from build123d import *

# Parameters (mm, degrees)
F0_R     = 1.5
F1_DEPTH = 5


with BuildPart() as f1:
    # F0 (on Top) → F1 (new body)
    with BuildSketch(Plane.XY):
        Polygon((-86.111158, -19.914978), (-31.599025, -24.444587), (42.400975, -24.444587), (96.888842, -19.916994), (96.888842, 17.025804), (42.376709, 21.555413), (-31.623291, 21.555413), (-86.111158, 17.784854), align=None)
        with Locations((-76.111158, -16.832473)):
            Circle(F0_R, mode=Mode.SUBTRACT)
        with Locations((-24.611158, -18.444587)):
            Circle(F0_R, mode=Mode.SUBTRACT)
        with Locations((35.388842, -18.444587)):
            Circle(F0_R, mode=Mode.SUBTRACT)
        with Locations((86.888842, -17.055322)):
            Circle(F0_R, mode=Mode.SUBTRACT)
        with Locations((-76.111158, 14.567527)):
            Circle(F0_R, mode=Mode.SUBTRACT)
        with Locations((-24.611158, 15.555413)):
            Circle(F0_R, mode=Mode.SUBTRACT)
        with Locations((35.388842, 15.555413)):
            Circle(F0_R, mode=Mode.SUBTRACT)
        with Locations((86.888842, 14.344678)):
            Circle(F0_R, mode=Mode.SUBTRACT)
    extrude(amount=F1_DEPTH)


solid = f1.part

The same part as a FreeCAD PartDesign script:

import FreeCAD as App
import Part
import Sketcher
Q = App.Units.Quantity

doc = App.newDocument("Part")
body = doc.addObject("PartDesign::Body", "Body")

sketch1 = body.newObject("Sketcher::SketchObject", "Sketch")
sketch1.AttachmentSupport = (doc.getObject("XY_Plane"), [""])
sketch1.MapMode = "FlatFace"
sketch1.addGeometry(Part.LineSegment(App.Vector(-86.1, -19.9, 0), App.Vector(-31.6, -24.4, 0)), False)
sketch1.addGeometry(Part.LineSegment(App.Vector(-31.6, -24.4, 0), App.Vector(42.4, -24.4, 0)), False)
sketch1.addGeometry(Part.LineSegment(App.Vector(42.4, -24.4, 0), App.Vector(96.9, -19.9, 0)), False)
sketch1.addGeometry(Part.LineSegment(App.Vector(96.9, -19.9, 0), App.Vector(96.9, 17, 0)), False)
sketch1.addGeometry(Part.LineSegment(App.Vector(96.9, 17, 0), App.Vector(42.4, 21.6, 0)), False)
sketch1.addGeometry(Part.LineSegment(App.Vector(42.4, 21.6, 0), App.Vector(-31.6, 21.6, 0)), False)
sketch1.addGeometry(Part.LineSegment(App.Vector(-31.6, 21.6, 0), App.Vector(-86.1, 17.8, 0)), False)
sketch1.addGeometry(Part.LineSegment(App.Vector(-86.1, 17.8, 0), App.Vector(-86.1, -19.9, 0)), False)
sketch1.addGeometry(Part.Circle(App.Vector(-76.1, -16.8, 0), App.Vector(0, 0, 1), 1.5), False)
sketch1.addGeometry(Part.Circle(App.Vector(-24.6, -18.4, 0), App.Vector(0, 0, 1), 1.5), False)
sketch1.addGeometry(Part.Circle(App.Vector(35.4, -18.4, 0), App.Vector(0, 0, 1), 1.5), False)
sketch1.addGeometry(Part.Circle(App.Vector(86.9, -17.1, 0), App.Vector(0, 0, 1), 1.5), False)
sketch1.addGeometry(Part.Circle(App.Vector(-76.1, 14.6, 0), App.Vector(0, 0, 1), 1.5), False)
sketch1.addGeometry(Part.Circle(App.Vector(-24.6, 15.6, 0), App.Vector(0, 0, 1), 1.5), False)
sketch1.addGeometry(Part.Circle(App.Vector(35.4, 15.6, 0), App.Vector(0, 0, 1), 1.5), False)
sketch1.addGeometry(Part.Circle(App.Vector(86.9, 14.3, 0), App.Vector(0, 0, 1), 1.5), False)
sketch1.addConstraint(Sketcher.Constraint("Coincident", 0, 2, 1, 1))
sketch1.addConstraint(Sketcher.Constraint("Coincident", 1, 2, 2, 1))
sketch1.addConstraint(Sketcher.Constraint("Coincident", 2, 2, 3, 1))
sketch1.addConstraint(Sketcher.Constraint("Coincident", 3, 2, 4, 1))
sketch1.addConstraint(Sketcher.Constraint("Coincident", 4, 2, 5, 1))
sketch1.addConstraint(Sketcher.Constraint("Coincident", 5, 2, 6, 1))
sketch1.addConstraint(Sketcher.Constraint("Coincident", 6, 2, 7, 1))
sketch1.addConstraint(Sketcher.Constraint("Coincident", 7, 2, 0, 1))
sketch1.addConstraint(Sketcher.Constraint("Horizontal", 1))
sketch1.addConstraint(Sketcher.Constraint("Vertical", 3))
sketch1.addConstraint(Sketcher.Constraint("Horizontal", 5))
sketch1.addConstraint(Sketcher.Constraint("Vertical", 7))
sketch1.addConstraint(Sketcher.Constraint("Equal", 8, 9))
sketch1.addConstraint(Sketcher.Constraint("Equal", 9, 10))
sketch1.addConstraint(Sketcher.Constraint("Equal", 10, 11))
sketch1.addConstraint(Sketcher.Constraint("Equal", 11, 12))
sketch1.addConstraint(Sketcher.Constraint("Equal", 12, 13))
sketch1.addConstraint(Sketcher.Constraint("Equal", 13, 14))
sketch1.addConstraint(Sketcher.Constraint("Equal", 14, 15))
sketch1.addConstraint(Sketcher.Constraint("Parallel", 0, 4))
sketch1.addConstraint(Sketcher.Constraint("Horizontal", 9, 3, 10, 3))
sketch1.addConstraint(Sketcher.Constraint("Horizontal", 13, 3, 14, 3))
sketch1.addConstraint(Sketcher.Constraint("Vertical", 8, 3, 12, 3))
sketch1.addConstraint(Sketcher.Constraint("Vertical", 9, 3, 13, 3))
sketch1.addConstraint(Sketcher.Constraint("Vertical", 10, 3, 14, 3))
sketch1.addConstraint(Sketcher.Constraint("Vertical", 11, 3, 15, 3))
sketch1.addConstraint(Sketcher.Constraint("Equal", 1, 5))
sketch1.addConstraint(Sketcher.Constraint("Equal", 0, 4))
sketch1.addConstraint(Sketcher.Constraint("Diameter", 8, 3.0))
sketch1.addConstraint(Sketcher.Constraint("DistanceX", 1, 1, 1, 2, 74.0))
sketch1.addConstraint(Sketcher.Constraint("DistanceX", 9, 3, 10, 3, 60.0))
sketch1.addConstraint(Sketcher.Constraint("DistanceX", 8, 3, 11, 3, 163.0))
sketch1.addConstraint(Sketcher.Constraint("DistanceY", 9, 3, 13, 3, 34.0))
sketch1.addConstraint(Sketcher.Constraint("DistanceY", 0, 2, 9, 3, 6.0))
sketch1.addConstraint(Sketcher.Constraint("DistanceX", 11, 3, 2, 2, 10.0))
sketch1.addConstraint(Sketcher.Constraint("DistanceY", 14, 3, 4, 2, 6.0))
sketch1.addConstraint(Sketcher.Constraint("DistanceX", 6, 2, 12, 3, 10.0))
sketch1.addConstraint(Sketcher.Constraint("Distance", 0, 54.7))
sketch1.addConstraint(Sketcher.Constraint("Angle", 0, Q("-4.75 deg")))
sketch1.addConstraint(Sketcher.Constraint("Angle", 2, Q("4.75 deg")))
sketch1.addConstraint(Sketcher.Constraint("DistanceX", 8, 3, 9, 3, 51.5))
sketch1.addConstraint(Sketcher.Constraint("DistanceY", 8, 3, 12, 3, 31.4))
sketch1.addConstraint(Sketcher.Constraint("DistanceY", 11, 3, 15, 3, 31.4))
sketch1.addConstraint(Sketcher.Constraint("DistanceY", 7, 2, 7, 1, 37.699832))
sketch1.addConstraint(Sketcher.Constraint("DistanceX", 8, 3, -1, 1, 76.111158))
sketch1.addConstraint(Sketcher.Constraint("DistanceY", 7, 2, -1, 1, 19.914978))
sketch1.addConstraint(Sketcher.Constraint("DistanceY", 11, 3, 8, 3, 0.222849))
sketch1.addConstraint(Sketcher.Constraint("DistanceY", 2, 2, 11, 3, 2.861672))
pad1 = body.newObject("PartDesign::Pad", "Pad")
pad1.Profile = sketch1
pad1.Length = 5

doc.recompute()
